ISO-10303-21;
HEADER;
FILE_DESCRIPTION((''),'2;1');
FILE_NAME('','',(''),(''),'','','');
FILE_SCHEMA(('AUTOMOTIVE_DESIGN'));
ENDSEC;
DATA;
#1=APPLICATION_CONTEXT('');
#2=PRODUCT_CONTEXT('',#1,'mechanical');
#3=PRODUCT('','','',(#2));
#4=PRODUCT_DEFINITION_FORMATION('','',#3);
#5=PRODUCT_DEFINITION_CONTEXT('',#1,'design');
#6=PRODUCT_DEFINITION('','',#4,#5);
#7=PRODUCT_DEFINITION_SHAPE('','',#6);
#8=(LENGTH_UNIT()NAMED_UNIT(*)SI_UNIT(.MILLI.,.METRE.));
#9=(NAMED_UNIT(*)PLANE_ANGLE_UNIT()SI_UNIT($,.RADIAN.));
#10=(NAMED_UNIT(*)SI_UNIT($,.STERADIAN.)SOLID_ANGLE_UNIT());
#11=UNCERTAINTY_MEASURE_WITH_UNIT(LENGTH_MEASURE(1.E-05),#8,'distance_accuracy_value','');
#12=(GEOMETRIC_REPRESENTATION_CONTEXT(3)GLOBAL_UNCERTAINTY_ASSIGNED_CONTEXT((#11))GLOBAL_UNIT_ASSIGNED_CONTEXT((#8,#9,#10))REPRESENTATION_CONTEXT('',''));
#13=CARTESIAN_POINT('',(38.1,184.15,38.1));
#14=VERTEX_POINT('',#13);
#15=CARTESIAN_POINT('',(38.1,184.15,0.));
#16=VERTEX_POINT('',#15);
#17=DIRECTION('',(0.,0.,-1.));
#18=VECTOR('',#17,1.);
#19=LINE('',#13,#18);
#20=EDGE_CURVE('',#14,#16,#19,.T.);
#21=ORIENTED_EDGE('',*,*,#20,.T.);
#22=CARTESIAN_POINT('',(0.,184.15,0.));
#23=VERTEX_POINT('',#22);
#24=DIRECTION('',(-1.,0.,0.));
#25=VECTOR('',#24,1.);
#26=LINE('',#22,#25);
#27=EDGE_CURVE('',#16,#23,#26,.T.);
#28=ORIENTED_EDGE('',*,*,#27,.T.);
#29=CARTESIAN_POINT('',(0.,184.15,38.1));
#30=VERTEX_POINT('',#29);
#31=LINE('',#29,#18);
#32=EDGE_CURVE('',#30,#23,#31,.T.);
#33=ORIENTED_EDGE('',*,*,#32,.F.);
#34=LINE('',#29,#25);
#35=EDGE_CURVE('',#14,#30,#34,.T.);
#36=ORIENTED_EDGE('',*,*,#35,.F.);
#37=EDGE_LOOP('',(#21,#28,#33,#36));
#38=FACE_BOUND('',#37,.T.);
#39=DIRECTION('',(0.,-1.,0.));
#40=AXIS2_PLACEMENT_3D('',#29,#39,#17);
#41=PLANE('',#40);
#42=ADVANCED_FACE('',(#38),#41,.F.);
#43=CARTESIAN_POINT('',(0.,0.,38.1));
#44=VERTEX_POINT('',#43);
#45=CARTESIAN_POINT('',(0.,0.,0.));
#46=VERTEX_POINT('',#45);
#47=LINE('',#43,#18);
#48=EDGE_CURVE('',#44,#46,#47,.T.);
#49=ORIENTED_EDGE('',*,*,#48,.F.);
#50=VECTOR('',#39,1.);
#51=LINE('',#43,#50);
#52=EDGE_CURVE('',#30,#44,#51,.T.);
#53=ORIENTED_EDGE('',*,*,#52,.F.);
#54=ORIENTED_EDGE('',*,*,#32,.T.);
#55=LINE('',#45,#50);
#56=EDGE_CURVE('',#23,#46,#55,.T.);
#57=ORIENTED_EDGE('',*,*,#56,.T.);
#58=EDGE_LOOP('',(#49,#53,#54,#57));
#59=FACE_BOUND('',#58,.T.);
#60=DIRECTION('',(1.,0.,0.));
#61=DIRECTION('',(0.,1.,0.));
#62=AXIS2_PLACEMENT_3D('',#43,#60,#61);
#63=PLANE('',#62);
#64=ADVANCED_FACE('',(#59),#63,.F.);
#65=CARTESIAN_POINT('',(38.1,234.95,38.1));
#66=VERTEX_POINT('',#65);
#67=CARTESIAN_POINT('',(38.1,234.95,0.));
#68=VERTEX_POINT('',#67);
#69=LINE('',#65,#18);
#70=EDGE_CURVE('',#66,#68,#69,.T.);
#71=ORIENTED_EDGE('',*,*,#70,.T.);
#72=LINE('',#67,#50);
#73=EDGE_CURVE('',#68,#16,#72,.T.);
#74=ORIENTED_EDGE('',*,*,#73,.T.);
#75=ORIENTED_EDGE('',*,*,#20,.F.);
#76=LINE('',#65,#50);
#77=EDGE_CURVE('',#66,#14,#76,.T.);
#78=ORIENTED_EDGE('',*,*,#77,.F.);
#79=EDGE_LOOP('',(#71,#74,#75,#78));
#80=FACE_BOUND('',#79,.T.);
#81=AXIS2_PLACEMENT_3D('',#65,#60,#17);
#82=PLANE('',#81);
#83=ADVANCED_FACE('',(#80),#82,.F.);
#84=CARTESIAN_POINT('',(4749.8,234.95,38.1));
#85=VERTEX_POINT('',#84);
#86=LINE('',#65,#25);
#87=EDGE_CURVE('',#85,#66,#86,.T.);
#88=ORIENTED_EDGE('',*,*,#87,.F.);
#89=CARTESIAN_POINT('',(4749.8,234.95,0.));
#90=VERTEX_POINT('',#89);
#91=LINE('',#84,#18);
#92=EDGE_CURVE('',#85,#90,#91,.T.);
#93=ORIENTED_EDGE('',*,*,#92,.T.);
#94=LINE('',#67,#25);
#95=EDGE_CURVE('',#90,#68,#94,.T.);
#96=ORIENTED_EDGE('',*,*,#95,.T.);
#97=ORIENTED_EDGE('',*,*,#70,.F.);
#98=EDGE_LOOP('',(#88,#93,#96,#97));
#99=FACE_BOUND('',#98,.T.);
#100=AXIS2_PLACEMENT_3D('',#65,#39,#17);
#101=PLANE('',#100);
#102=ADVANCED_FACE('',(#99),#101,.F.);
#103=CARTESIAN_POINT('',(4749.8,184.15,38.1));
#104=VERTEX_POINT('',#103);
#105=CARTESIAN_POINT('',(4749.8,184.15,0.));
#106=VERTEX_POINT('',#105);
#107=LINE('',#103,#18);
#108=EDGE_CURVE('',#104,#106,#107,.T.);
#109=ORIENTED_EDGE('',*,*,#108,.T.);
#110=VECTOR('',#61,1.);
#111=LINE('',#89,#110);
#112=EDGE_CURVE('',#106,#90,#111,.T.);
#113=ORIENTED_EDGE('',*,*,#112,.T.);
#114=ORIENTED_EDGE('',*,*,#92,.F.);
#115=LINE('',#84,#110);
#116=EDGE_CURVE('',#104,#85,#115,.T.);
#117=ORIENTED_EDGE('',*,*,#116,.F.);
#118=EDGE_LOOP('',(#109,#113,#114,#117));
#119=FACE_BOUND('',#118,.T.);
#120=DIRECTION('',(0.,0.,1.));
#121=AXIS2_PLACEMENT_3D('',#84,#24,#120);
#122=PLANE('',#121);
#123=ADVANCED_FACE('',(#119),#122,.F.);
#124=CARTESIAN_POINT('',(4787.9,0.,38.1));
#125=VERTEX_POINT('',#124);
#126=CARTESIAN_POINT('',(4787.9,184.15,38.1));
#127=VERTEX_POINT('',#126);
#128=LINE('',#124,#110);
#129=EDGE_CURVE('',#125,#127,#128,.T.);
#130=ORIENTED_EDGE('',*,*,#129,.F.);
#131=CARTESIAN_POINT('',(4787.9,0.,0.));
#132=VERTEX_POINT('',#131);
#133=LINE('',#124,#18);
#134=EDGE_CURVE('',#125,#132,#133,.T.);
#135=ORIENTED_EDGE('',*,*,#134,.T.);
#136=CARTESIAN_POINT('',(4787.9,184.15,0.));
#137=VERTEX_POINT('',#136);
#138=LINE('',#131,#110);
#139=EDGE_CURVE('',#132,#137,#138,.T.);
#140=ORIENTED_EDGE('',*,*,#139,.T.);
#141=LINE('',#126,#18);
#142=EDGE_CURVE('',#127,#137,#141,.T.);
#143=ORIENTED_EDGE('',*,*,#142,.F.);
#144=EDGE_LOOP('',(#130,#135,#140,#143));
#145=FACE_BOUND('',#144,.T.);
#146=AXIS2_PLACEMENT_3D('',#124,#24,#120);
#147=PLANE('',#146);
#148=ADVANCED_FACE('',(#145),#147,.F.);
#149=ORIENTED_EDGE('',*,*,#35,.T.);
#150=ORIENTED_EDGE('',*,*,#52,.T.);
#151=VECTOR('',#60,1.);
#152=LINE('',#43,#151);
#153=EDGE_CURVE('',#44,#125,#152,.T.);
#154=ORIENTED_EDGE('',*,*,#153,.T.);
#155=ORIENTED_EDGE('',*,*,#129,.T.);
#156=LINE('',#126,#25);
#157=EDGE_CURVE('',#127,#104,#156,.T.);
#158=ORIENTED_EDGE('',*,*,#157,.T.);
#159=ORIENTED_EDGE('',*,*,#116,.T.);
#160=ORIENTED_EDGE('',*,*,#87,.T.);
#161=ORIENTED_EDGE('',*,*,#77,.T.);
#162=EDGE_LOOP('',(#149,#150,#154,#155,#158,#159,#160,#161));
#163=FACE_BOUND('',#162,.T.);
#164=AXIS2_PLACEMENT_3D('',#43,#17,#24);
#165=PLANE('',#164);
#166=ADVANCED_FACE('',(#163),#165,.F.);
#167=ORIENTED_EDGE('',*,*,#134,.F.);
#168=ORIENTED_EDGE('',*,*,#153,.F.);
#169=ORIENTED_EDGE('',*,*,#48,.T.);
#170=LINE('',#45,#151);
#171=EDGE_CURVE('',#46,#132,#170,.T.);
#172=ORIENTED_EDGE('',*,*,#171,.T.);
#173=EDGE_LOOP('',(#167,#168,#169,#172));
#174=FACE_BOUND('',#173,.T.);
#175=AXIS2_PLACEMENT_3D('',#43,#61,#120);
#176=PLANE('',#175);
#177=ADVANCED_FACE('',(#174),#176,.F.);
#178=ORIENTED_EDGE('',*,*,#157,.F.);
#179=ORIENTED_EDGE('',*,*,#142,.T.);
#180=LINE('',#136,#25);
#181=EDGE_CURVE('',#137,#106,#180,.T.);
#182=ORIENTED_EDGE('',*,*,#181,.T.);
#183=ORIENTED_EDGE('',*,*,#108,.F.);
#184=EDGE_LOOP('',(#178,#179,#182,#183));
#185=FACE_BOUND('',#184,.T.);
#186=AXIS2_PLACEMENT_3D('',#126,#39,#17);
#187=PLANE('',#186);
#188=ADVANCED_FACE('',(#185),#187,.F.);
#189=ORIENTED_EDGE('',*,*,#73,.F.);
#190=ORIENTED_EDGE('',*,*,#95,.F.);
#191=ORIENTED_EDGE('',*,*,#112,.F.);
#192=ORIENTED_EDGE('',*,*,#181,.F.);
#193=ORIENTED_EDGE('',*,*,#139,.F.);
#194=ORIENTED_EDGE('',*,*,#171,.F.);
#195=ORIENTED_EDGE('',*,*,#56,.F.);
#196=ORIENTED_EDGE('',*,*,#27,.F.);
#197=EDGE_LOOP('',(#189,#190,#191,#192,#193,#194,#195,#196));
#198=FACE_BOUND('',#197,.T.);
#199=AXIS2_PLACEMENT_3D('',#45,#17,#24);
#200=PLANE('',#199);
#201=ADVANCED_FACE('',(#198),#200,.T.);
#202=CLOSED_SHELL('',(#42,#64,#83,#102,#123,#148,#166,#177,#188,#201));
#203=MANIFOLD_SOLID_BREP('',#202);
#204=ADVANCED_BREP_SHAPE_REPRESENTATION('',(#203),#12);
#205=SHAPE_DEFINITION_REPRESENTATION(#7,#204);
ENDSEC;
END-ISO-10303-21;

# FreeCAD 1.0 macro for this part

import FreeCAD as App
import Part
import Sketcher
Q = App.Units.Quantity


def add_polygon(sketch, points):
    """Adds a closed chain of lines whose ends are joined by coincident constraints."""
    first, n = sketch.GeometryCount, len(points)
    for a, b in zip(points, points[1:] + points[:1]):
        sketch.addGeometry(Part.LineSegment(App.Vector(*a, 0), App.Vector(*b, 0)), False)
    for i in range(n):
        sketch.addConstraint(Sketcher.Constraint("Coincident", first + i, 2, first + (i + 1) % n, 1))

doc = App.newDocument("Part")
body = doc.addObject("PartDesign::Body", "Body")

# Sketch on XY plane
sketch1 = body.newObject("Sketcher::SketchObject", "Sketch")
sketch1.AttachmentSupport = (doc.getObject("XY_Plane"), [""])
sketch1.MapMode = "FlatFace"
add_polygon(sketch1, [(0, 0), (4788, 0), (4788, 184), (4750, 184), (4750, 235), (38, 235), (38, 184), (0, 184)])  # lines 0-7
sketch1.addConstraint(Sketcher.Constraint("Horizontal", 0))
sketch1.addConstraint(Sketcher.Constraint("Vertical", 1))
sketch1.addConstraint(Sketcher.Constraint("Horizontal", 2))
sketch1.addConstraint(Sketcher.Constraint("Vertical", 3))
sketch1.addConstraint(Sketcher.Constraint("Horizontal", 4))
sketch1.addConstraint(Sketcher.Constraint("Vertical", 5))
sketch1.addConstraint(Sketcher.Constraint("Horizontal", 6))
sketch1.addConstraint(Sketcher.Constraint("Vertical", 7))
sketch1.addConstraint(Sketcher.Constraint("Coincident", 7, 2, -1, 1))
sketch1.addConstraint(Sketcher.Constraint("Horizontal", 2, 2, 5, 2))
sketch1.addConstraint(Sketcher.Constraint("Equal", 2, 6))
sketch1.addConstraint(Sketcher.Constraint("DistanceY", 3, 1, 3, 2, Q("2 in")))
sketch1.addConstraint(Sketcher.Constraint("DistanceX", 0, 1, 0, 2, Q("188.5 in")))
sketch1.addConstraint(Sketcher.Constraint("DistanceX", 2, 2, 2, 1, Q("1.5 in")))
sketch1.addConstraint(Sketcher.Constraint("DistanceY", 1, 1, 1, 2, Q("7.25 in")))
pad1 = body.newObject("PartDesign::Pad", "Pad")
pad1.Profile = sketch1
pad1.Length = Q("1.5 in")

doc.recompute()
